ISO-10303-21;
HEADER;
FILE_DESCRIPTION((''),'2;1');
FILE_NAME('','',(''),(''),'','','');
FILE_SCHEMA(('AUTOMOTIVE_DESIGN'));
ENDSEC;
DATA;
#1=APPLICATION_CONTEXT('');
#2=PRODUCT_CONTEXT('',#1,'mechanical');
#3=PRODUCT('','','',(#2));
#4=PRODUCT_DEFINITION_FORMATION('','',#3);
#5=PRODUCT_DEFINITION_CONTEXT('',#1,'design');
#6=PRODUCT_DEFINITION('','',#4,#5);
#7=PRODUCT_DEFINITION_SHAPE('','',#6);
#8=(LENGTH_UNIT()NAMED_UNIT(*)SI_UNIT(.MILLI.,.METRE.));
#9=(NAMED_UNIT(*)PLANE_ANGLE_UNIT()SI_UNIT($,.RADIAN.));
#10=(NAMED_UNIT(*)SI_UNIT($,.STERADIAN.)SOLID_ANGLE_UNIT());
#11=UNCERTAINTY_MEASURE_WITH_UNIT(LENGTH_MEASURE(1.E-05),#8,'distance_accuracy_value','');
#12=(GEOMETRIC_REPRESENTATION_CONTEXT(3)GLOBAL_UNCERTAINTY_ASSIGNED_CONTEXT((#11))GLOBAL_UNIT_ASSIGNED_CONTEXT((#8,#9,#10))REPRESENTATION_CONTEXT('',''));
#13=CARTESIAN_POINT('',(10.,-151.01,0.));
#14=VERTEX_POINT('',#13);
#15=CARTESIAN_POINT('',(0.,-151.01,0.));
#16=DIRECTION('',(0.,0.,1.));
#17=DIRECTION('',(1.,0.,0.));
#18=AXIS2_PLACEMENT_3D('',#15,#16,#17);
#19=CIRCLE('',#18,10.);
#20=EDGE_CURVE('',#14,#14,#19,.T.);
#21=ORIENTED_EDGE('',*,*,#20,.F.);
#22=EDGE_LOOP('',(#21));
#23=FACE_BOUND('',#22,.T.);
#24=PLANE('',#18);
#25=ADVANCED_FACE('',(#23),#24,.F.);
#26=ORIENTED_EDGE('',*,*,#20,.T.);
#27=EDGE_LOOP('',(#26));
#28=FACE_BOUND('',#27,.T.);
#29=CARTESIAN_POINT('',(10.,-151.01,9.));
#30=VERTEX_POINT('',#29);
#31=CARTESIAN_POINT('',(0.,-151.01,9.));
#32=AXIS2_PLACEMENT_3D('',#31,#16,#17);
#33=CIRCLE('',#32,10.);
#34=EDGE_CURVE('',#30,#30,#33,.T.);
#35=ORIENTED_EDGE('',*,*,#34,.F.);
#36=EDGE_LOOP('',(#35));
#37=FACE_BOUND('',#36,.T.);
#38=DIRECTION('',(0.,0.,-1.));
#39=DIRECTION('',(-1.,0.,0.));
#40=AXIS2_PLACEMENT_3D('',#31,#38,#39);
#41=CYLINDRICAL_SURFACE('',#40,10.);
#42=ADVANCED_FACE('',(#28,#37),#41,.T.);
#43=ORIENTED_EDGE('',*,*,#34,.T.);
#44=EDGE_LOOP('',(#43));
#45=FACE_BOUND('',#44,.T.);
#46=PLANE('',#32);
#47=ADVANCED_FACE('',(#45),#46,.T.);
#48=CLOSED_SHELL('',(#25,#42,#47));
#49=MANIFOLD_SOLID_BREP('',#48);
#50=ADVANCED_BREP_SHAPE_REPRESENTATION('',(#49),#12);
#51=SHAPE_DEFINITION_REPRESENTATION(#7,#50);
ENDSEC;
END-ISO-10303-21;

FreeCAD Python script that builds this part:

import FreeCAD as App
import Part
import Sketcher
from FreeCAD import Vector

doc = App.newDocument("Part")
body = doc.addObject("PartDesign::Body", "Body")

# Sketch on XY plane
sketch1 = body.newObject("Sketcher::SketchObject", "Sketch")
sketch1.AttachmentSupport = (doc.getObject("XY_Plane"), [""])
sketch1.MapMode = "FlatFace"
sketch1.addGeometry(Part.Circle(Vector(0, -151, 0), Vector(0, 0, 1), 10), False)
sketch1.addConstraint([
    Sketcher.Constraint("PointOnObject", 0, 3, -2),
    Sketcher.Constraint("Diameter", 0, 20.0),
    Sketcher.Constraint("DistanceY", 0, 3, -1, 1, 151.01),
])
pad1 = body.newObject("PartDesign::Pad", "Pad")
pad1.Profile = sketch1
pad1.Length = 9

doc.recompute()
